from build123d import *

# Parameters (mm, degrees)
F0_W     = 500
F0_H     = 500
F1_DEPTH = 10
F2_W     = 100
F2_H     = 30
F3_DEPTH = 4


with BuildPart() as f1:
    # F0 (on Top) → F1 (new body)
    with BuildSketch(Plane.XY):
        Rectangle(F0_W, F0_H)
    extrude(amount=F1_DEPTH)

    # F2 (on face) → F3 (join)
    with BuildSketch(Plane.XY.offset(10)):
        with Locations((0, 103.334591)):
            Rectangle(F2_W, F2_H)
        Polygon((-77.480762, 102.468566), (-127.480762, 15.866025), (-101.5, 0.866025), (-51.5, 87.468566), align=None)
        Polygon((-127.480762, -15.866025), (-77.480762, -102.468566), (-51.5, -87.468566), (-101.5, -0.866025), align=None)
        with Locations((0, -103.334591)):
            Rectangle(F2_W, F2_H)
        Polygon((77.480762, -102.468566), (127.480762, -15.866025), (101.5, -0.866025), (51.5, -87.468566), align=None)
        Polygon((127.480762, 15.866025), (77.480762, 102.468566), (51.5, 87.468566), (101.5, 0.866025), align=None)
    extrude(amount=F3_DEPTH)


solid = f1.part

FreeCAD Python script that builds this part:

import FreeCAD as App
import Part
import Sketcher

V = App.Vector
Q = App.Units.Quantity


def add_polygon(sketch, points):
    """Adds a closed chain of lines whose ends are joined by coincident constraints."""
    first, n = sketch.GeometryCount, len(points)
    for a, b in zip(points, points[1:] + points[:1]):
        sketch.addGeometry(Part.LineSegment(App.Vector(*a, 0), App.Vector(*b, 0)), False)
    for i in range(n):
        sketch.addConstraint(Sketcher.Constraint("Coincident", first + i, 2, first + (i + 1) % n, 1))

doc = App.newDocument("Part")
body = doc.addObject("PartDesign::Body", "Body")

sketch1 = doc.addObject("Sketcher::SketchObject", "Sketch")
body.addObject(sketch1)
sketch1.AttachmentSupport = (doc.XY_Plane, [""])
sketch1.MapMode = "FlatFace"
add_polygon(sketch1, [(-250, 250), (-250, -250), (250, -250), (250, 250)])
sketch1.addConstraint([
    Sketcher.Constraint("Vertical", 0),
    Sketcher.Constraint("Horizontal", 1),
    Sketcher.Constraint("Vertical", 2),
    Sketcher.Constraint("Horizontal", 3),
    Sketcher.Constraint("Symmetric", 0, 2, 2, 2, -1, 1),
    Sketcher.Constraint("Equal", 3, 0),
    Sketcher.Constraint("DistanceX", 1, 1, 1, 2, Q("500 mm")),
])
pad1 = doc.addObject("PartDesign::Pad", "Pad")
body.addObject(pad1)
pad1.Profile = sketch1
pad1.Length = 10

sketch2 = doc.addObject("Sketcher::SketchObject", "Sketch001")
body.addObject(sketch2)
sketch2.AttachmentSupport = (doc.XY_Plane, [""])
sketch2.MapMode = "FlatFace"
sketch2.AttachmentOffset = App.Placement(V(0, 0, 10), App.Rotation())
add_polygon(sketch2, [(-50, 118), (-50, 88), (50, 88), (50, 118)])
add_polygon(sketch2, [(-77, 102), (-127, 16), (-102, 1), (-52, 87)])
add_polygon(sketch2, [(-127, -16), (-77, -102), (-52, -87), (-102, -1)])
add_polygon(sketch2, [(-50, -88), (-50, -118), (50, -118), (50, -88)])
add_polygon(sketch2, [(77, -102), (127, -16), (102, -1), (52, -87)])
add_polygon(sketch2, [(127, 16), (77, 102), (52, 87), (102, 1)])
sketch2.addConstraint([
    Sketcher.Constraint("Vertical", 0),
    Sketcher.Constraint("Horizontal", 1),
    Sketcher.Constraint("Vertical", 2),
    Sketcher.Constraint("Horizontal", 3),
    Sketcher.Constraint("Vertical", 12),
    Sketcher.Constraint("Horizontal", 13),
    Sketcher.Constraint("Vertical", 14),
    Sketcher.Constraint("Horizontal", 15),
    Sketcher.Constraint("Symmetric", 2, 2, 12, 2, -1, 1),
    Sketcher.Constraint("Symmetric", 0, 2, 14, 2, -1, 1),
    Sketcher.Constraint("Symmetric", 4, 2, 16, 2, -1, 1),
    Sketcher.Constraint("Symmetric", 5, 2, 17, 2, -1, 1),
    Sketcher.Constraint("Symmetric", 6, 2, 18, 2, -1, 1),
    Sketcher.Constraint("Symmetric", 7, 2, 19, 2, -1, 1),
    Sketcher.Constraint("Symmetric", 8, 2, 20, 2, -1, 1),
    Sketcher.Constraint("Symmetric", 9, 2, 21, 2, -1, 1),
    Sketcher.Constraint("Symmetric", 10, 2, 22, 2, -1, 1),
    Sketcher.Constraint("Symmetric", 11, 2, 23, 2, -1, 1),
    Sketcher.Constraint("Symmetric", 11, 2, 16, 2, -2),
    Sketcher.Constraint("Symmetric", 10, 2, 17, 2, -2),
    Sketcher.Constraint("Symmetric", 9, 2, 18, 2, -2),
    Sketcher.Constraint("Symmetric", 8, 2, 19, 2, -2),
    Sketcher.Constraint("Perpendicular", 4, 5),
    Sketcher.Constraint("Perpendicular", 5, 6),
    Sketcher.Constraint("Perpendicular", 6, 7),
    Sketcher.Constraint("Vertical", 3, 2, 12, 2),
    Sketcher.Constraint("DistanceX", 1, 1, 1, 2, Q("100 mm")),
    Sketcher.Constraint("DistanceY", 0, 2, 0, 1, Q("30 mm")),
    Sketcher.Constraint("Angle", 4, Q("-120 deg")),
    Sketcher.Constraint("Distance", 4, Q("100.000001 mm")),
    Sketcher.Constraint("Distance", 5, Q("30 mm")),
    Sketcher.Constraint("DistanceX", 9, 2, 18, 2, Q("103 mm")),
    Sketcher.Constraint("DistanceY", -1, 1, 0, 2, Q("88.334591 mm")),
    Sketcher.Constraint("DistanceY", 8, 2, 5, 2, Q("103.334591 mm")),
])
pad2 = doc.addObject("PartDesign::Pad", "Pad001")
body.addObject(pad2)
pad2.Profile = sketch2
pad2.Length = 4

doc.recompute()
